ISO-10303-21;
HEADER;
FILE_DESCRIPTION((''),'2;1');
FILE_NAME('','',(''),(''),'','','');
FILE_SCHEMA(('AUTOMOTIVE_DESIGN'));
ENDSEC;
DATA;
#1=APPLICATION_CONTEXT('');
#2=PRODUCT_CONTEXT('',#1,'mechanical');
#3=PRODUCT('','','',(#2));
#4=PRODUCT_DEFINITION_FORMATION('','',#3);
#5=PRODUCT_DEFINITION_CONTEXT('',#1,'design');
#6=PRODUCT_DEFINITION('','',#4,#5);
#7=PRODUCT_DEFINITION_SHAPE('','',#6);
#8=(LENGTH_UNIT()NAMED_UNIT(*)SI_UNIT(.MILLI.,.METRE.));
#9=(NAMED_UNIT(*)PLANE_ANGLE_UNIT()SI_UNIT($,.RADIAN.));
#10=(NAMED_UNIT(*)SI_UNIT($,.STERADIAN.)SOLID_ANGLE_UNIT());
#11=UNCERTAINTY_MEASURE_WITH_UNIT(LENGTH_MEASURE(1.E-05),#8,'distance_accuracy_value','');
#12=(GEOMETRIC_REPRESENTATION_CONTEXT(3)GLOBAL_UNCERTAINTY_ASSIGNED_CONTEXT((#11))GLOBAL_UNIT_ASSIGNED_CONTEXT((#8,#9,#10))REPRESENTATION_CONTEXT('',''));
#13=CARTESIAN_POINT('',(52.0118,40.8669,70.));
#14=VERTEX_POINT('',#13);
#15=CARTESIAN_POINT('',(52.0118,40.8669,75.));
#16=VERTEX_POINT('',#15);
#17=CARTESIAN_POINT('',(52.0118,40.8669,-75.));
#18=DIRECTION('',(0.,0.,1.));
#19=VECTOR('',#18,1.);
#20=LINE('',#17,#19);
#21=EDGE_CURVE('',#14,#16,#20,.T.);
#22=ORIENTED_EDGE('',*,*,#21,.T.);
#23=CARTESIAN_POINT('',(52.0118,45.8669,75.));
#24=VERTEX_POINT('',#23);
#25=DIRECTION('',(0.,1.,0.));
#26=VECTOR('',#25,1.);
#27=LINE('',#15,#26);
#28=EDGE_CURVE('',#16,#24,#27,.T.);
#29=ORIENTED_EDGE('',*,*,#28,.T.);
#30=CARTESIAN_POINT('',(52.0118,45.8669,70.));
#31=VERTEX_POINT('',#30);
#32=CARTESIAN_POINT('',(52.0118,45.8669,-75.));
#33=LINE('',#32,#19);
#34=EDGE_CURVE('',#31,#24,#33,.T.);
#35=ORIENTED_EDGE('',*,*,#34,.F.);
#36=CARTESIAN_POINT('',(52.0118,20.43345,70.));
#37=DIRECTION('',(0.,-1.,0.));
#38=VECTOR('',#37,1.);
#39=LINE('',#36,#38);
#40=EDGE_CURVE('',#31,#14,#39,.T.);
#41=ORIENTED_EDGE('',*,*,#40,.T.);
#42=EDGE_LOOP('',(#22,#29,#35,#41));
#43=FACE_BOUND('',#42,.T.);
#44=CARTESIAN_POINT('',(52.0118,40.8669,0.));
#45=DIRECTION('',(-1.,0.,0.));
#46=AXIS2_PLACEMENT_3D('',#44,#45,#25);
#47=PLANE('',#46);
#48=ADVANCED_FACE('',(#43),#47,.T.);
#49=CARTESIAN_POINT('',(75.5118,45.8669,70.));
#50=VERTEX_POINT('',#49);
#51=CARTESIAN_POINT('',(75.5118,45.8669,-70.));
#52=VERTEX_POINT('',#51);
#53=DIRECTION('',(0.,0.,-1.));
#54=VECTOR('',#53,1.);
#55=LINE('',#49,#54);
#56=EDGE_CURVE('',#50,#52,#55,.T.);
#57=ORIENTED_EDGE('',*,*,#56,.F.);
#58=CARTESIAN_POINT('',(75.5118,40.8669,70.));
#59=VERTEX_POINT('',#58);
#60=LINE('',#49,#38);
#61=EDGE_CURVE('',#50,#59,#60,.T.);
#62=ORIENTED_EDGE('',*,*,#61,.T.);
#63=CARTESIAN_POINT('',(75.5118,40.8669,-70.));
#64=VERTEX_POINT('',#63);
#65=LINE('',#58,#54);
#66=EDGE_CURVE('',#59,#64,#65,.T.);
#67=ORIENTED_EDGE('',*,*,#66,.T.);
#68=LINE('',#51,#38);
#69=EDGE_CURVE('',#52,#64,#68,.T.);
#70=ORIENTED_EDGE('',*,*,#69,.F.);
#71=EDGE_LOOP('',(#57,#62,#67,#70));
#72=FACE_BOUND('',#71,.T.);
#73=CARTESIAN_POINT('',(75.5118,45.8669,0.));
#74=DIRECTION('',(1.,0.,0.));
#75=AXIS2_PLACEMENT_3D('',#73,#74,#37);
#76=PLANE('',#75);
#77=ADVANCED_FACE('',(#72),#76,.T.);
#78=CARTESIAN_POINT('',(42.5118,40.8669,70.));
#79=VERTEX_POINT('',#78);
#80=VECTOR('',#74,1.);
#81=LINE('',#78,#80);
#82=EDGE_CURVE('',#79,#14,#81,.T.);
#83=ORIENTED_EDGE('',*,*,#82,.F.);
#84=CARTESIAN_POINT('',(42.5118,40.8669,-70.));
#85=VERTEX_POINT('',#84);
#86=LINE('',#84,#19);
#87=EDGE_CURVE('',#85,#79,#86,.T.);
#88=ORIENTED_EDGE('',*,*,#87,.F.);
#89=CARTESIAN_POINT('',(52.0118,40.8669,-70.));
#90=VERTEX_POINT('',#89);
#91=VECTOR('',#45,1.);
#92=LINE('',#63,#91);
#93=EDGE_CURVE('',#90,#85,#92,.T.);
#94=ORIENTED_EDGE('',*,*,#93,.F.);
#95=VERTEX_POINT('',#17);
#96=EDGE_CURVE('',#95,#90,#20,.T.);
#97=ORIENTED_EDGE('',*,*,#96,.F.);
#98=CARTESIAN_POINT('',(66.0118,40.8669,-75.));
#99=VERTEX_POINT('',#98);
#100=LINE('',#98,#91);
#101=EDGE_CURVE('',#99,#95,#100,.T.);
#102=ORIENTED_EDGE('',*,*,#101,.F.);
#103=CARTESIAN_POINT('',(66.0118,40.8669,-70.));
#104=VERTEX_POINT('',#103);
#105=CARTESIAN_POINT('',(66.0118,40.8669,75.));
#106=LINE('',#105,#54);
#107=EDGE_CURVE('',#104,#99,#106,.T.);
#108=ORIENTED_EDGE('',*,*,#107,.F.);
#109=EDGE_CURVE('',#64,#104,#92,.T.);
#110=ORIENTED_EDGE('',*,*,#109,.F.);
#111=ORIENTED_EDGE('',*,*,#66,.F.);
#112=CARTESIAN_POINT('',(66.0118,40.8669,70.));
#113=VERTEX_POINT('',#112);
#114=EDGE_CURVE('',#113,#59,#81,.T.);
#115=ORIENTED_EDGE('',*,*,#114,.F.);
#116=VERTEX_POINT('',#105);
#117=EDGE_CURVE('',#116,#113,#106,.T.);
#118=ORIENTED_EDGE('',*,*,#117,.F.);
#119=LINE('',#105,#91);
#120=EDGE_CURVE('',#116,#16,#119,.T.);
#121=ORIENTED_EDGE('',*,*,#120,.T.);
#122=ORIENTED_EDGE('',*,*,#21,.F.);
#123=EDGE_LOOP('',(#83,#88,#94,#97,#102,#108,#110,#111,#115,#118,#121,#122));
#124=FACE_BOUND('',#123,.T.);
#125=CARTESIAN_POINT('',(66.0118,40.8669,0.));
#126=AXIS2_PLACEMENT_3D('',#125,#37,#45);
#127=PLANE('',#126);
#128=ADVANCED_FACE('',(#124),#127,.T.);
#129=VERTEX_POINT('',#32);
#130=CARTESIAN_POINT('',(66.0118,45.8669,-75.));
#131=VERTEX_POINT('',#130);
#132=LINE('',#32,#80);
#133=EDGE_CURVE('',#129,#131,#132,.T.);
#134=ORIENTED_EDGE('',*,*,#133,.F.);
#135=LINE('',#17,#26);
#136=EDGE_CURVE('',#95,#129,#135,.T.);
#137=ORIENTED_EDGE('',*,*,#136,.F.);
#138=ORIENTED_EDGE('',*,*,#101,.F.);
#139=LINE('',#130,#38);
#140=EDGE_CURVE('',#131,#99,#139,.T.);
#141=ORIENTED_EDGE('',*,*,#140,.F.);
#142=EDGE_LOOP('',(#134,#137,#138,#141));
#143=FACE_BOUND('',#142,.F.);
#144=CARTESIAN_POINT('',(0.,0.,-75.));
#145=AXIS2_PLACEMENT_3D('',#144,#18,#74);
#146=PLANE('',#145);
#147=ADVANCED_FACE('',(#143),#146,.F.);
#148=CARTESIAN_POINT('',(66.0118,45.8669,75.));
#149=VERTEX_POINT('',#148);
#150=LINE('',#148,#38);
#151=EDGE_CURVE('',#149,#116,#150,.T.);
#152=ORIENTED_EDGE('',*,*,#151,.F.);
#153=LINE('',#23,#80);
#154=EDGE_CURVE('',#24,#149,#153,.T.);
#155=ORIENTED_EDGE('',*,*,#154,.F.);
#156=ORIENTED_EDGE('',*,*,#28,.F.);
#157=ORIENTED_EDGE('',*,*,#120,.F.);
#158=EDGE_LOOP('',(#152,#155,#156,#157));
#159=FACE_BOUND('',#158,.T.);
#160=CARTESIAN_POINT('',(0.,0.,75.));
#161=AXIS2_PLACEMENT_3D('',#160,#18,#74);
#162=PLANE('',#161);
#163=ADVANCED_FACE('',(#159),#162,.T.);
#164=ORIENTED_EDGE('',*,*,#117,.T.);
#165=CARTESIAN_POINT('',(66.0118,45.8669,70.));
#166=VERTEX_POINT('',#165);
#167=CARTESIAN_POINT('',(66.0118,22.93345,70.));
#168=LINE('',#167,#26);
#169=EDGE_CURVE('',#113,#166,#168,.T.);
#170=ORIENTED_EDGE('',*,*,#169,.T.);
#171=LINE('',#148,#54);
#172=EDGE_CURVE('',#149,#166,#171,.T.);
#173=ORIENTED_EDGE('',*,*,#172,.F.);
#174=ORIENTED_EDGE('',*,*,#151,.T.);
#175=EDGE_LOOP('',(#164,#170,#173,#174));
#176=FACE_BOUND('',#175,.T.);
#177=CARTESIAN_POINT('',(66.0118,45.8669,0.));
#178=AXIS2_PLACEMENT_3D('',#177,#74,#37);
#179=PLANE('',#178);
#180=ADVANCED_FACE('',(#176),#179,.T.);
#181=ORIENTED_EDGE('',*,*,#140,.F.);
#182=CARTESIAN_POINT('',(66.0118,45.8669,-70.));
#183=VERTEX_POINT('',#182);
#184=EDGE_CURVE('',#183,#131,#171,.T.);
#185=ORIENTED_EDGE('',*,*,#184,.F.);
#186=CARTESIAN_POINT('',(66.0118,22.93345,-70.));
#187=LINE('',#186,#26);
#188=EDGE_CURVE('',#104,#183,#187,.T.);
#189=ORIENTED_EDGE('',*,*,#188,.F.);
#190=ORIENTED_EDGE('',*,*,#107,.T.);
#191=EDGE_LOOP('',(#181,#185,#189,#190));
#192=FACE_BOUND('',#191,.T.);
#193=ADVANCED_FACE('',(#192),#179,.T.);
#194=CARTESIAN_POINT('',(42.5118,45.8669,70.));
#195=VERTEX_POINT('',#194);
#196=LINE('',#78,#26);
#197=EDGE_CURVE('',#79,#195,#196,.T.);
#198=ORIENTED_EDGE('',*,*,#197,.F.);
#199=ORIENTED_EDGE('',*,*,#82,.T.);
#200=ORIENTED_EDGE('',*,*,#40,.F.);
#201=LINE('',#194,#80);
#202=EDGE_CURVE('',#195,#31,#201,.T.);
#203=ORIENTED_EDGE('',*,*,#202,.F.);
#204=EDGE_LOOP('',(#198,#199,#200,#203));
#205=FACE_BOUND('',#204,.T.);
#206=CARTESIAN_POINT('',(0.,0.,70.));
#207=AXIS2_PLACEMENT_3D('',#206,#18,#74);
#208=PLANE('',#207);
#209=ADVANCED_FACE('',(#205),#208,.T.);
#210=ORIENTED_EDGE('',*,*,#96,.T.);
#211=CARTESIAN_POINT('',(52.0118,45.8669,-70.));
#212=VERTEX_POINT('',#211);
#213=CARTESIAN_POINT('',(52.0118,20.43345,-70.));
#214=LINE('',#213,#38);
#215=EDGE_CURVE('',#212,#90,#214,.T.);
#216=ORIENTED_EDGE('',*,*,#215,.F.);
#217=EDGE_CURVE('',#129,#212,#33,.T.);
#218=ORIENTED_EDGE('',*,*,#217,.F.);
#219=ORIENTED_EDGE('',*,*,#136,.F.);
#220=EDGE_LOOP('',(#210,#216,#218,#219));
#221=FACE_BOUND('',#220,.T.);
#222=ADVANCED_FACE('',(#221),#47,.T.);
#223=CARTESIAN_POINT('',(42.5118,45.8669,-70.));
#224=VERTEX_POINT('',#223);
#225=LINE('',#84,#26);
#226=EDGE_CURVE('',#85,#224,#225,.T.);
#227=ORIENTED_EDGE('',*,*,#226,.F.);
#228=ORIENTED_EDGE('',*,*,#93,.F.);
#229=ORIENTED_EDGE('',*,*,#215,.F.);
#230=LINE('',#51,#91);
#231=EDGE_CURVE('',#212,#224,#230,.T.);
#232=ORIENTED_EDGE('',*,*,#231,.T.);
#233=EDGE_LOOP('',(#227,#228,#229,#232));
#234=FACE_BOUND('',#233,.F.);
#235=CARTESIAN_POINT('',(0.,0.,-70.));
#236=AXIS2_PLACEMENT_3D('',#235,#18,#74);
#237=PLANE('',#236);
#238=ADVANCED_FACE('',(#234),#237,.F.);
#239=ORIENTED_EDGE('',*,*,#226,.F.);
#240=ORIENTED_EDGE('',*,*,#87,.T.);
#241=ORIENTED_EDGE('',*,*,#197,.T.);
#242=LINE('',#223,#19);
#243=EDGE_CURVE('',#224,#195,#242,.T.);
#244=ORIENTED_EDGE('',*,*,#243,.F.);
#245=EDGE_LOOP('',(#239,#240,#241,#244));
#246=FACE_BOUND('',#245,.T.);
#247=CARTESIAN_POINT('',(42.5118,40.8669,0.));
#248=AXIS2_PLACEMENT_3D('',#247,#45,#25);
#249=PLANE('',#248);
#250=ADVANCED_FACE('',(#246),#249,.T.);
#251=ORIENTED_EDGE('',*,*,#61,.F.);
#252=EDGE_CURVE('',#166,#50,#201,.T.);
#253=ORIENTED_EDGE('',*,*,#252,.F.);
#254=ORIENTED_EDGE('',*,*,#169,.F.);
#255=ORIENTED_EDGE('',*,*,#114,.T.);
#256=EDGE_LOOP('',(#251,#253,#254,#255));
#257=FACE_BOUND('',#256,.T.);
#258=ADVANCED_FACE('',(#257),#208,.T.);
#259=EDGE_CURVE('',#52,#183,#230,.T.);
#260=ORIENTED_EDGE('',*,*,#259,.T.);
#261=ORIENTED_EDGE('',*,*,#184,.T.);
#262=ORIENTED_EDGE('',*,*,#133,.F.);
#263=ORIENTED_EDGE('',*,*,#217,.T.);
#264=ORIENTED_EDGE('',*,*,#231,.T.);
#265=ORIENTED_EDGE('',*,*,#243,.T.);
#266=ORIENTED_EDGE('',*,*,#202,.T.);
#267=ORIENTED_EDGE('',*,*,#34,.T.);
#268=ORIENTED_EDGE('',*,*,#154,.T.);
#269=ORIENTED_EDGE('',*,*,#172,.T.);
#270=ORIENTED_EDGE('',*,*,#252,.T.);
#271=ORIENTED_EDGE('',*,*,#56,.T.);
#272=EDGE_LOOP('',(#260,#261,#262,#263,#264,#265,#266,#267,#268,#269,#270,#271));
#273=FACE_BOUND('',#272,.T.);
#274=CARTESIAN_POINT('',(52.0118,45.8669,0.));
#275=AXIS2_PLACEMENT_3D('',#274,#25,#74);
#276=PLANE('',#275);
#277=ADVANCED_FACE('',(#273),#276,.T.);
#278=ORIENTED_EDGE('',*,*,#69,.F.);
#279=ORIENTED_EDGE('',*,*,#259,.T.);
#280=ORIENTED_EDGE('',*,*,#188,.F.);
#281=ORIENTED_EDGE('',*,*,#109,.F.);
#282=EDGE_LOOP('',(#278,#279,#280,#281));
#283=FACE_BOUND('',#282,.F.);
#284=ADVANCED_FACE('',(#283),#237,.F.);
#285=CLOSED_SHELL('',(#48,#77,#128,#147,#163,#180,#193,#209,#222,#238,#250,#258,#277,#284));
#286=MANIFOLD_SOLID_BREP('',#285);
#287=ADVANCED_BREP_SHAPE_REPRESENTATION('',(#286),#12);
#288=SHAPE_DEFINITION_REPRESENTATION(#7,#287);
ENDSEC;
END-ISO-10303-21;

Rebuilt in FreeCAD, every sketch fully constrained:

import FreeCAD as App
import Part
import Sketcher

V = App.Vector

doc = App.newDocument("Part")
params = doc.addObject("Spreadsheet::Sheet", "Params")
for row, (alias, value) in enumerate([
    ("sketch1_width", "33 mm"),
    ("sketch1_height", "5 mm"),
    ("pad1_length", "140 mm"),
    ("sketch2_width", "14 mm"),
    ("sketch2_height", "5 mm"),
    ("pad2_length", "150 mm"),
], start=1):
    params.set(f"A{row}", alias)
    params.set(f"B{row}", "=" + value)
    params.setAlias(f"B{row}", alias)

body = doc.addObject("PartDesign::Body", "Body")

sketch1 = body.newObject("Sketcher::SketchObject", "Sketch")
sketch1.AttachmentSupport = (doc.getObject("XY_Plane"), [""])
sketch1.MapMode = "FlatFace"
sketch1.addGeometry(Part.LineSegment(V(43, 46, 0), V(43, 41, 0)), False)
sketch1.addGeometry(Part.LineSegment(V(43, 41, 0), V(76, 41, 0)), False)
sketch1.addGeometry(Part.LineSegment(V(76, 41, 0), V(76, 46, 0)), False)
sketch1.addGeometry(Part.LineSegment(V(76, 46, 0), V(43, 46, 0)), False)
sketch1.addConstraint(Sketcher.Constraint("Coincident", 0, 2, 1, 1))
sketch1.addConstraint(Sketcher.Constraint("Coincident", 1, 2, 2, 1))
sketch1.addConstraint(Sketcher.Constraint("Coincident", 2, 2, 3, 1))
sketch1.addConstraint(Sketcher.Constraint("Coincident", 3, 2, 0, 1))
sketch1.addConstraint(Sketcher.Constraint("Vertical", 0))
sketch1.addConstraint(Sketcher.Constraint("Horizontal", 1))
sketch1.addConstraint(Sketcher.Constraint("Vertical", 2))
sketch1.addConstraint(Sketcher.Constraint("Horizontal", 3))
sketch1.addConstraint(Sketcher.Constraint("DistanceX", 1, 1, 1, 2, 33.0))
sketch1.addConstraint(Sketcher.Constraint("DistanceY", 0, 2, 0, 1, 5.0))
sketch1.addConstraint(Sketcher.Constraint("DistanceY", -1, 1, 0, 2, 40.867))
sketch1.addConstraint(Sketcher.Constraint("DistanceX", -1, 1, 0, 2, 42.5118))
sketch1.setExpression("Constraints[8]", "Params.sketch1_width")
sketch1.setExpression("Constraints[9]", "Params.sketch1_height")
pad1 = body.newObject("PartDesign::Pad", "Pad")
pad1.Profile = sketch1
pad1.setExpression("Length", "Params.pad1_length")
pad1.Midplane = True

sketch2 = body.newObject("Sketcher::SketchObject", "Sketch001")
sketch2.AttachmentSupport = (doc.getObject("XY_Plane"), [""])
sketch2.MapMode = "FlatFace"
sketch2.addGeometry(Part.LineSegment(V(66, 46, 0), V(52, 46, 0)), False)
sketch2.addGeometry(Part.LineSegment(V(52, 46, 0), V(52, 41, 0)), False)
sketch2.addGeometry(Part.LineSegment(V(52, 41, 0), V(66, 41, 0)), False)
sketch2.addGeometry(Part.LineSegment(V(66, 41, 0), V(66, 46, 0)), False)
sketch2.addConstraint(Sketcher.Constraint("Coincident", 0, 2, 1, 1))
sketch2.addConstraint(Sketcher.Constraint("Coincident", 1, 2, 2, 1))
sketch2.addConstraint(Sketcher.Constraint("Coincident", 2, 2, 3, 1))
sketch2.addConstraint(Sketcher.Constraint("Coincident", 3, 2, 0, 1))
sketch2.addConstraint(Sketcher.Constraint("Horizontal", 0))
sketch2.addConstraint(Sketcher.Constraint("Vertical", 1))
sketch2.addConstraint(Sketcher.Constraint("Horizontal", 2))
sketch2.addConstraint(Sketcher.Constraint("Vertical", 3))
sketch2.addConstraint(Sketcher.Constraint("DistanceX", 0, 2, 0, 1, 14.0))
sketch2.addConstraint(Sketcher.Constraint("DistanceY", 1, 2, 1, 1, 5.0))
sketch2.addConstraint(Sketcher.Constraint("DistanceY", -1, 1, 0, 2, 45.867))
sketch2.addConstraint(Sketcher.Constraint("DistanceX", -1, 1, 0, 2, 52.0118))
sketch2.setExpression("Constraints[8]", "Params.sketch2_width")
sketch2.setExpression("Constraints[9]", "Params.sketch2_height")
pad2 = body.newObject("PartDesign::Pad", "Pad001")
pad2.Profile = sketch2
pad2.setExpression("Length", "Params.pad2_length")
pad2.Midplane = True

doc.recompute()
